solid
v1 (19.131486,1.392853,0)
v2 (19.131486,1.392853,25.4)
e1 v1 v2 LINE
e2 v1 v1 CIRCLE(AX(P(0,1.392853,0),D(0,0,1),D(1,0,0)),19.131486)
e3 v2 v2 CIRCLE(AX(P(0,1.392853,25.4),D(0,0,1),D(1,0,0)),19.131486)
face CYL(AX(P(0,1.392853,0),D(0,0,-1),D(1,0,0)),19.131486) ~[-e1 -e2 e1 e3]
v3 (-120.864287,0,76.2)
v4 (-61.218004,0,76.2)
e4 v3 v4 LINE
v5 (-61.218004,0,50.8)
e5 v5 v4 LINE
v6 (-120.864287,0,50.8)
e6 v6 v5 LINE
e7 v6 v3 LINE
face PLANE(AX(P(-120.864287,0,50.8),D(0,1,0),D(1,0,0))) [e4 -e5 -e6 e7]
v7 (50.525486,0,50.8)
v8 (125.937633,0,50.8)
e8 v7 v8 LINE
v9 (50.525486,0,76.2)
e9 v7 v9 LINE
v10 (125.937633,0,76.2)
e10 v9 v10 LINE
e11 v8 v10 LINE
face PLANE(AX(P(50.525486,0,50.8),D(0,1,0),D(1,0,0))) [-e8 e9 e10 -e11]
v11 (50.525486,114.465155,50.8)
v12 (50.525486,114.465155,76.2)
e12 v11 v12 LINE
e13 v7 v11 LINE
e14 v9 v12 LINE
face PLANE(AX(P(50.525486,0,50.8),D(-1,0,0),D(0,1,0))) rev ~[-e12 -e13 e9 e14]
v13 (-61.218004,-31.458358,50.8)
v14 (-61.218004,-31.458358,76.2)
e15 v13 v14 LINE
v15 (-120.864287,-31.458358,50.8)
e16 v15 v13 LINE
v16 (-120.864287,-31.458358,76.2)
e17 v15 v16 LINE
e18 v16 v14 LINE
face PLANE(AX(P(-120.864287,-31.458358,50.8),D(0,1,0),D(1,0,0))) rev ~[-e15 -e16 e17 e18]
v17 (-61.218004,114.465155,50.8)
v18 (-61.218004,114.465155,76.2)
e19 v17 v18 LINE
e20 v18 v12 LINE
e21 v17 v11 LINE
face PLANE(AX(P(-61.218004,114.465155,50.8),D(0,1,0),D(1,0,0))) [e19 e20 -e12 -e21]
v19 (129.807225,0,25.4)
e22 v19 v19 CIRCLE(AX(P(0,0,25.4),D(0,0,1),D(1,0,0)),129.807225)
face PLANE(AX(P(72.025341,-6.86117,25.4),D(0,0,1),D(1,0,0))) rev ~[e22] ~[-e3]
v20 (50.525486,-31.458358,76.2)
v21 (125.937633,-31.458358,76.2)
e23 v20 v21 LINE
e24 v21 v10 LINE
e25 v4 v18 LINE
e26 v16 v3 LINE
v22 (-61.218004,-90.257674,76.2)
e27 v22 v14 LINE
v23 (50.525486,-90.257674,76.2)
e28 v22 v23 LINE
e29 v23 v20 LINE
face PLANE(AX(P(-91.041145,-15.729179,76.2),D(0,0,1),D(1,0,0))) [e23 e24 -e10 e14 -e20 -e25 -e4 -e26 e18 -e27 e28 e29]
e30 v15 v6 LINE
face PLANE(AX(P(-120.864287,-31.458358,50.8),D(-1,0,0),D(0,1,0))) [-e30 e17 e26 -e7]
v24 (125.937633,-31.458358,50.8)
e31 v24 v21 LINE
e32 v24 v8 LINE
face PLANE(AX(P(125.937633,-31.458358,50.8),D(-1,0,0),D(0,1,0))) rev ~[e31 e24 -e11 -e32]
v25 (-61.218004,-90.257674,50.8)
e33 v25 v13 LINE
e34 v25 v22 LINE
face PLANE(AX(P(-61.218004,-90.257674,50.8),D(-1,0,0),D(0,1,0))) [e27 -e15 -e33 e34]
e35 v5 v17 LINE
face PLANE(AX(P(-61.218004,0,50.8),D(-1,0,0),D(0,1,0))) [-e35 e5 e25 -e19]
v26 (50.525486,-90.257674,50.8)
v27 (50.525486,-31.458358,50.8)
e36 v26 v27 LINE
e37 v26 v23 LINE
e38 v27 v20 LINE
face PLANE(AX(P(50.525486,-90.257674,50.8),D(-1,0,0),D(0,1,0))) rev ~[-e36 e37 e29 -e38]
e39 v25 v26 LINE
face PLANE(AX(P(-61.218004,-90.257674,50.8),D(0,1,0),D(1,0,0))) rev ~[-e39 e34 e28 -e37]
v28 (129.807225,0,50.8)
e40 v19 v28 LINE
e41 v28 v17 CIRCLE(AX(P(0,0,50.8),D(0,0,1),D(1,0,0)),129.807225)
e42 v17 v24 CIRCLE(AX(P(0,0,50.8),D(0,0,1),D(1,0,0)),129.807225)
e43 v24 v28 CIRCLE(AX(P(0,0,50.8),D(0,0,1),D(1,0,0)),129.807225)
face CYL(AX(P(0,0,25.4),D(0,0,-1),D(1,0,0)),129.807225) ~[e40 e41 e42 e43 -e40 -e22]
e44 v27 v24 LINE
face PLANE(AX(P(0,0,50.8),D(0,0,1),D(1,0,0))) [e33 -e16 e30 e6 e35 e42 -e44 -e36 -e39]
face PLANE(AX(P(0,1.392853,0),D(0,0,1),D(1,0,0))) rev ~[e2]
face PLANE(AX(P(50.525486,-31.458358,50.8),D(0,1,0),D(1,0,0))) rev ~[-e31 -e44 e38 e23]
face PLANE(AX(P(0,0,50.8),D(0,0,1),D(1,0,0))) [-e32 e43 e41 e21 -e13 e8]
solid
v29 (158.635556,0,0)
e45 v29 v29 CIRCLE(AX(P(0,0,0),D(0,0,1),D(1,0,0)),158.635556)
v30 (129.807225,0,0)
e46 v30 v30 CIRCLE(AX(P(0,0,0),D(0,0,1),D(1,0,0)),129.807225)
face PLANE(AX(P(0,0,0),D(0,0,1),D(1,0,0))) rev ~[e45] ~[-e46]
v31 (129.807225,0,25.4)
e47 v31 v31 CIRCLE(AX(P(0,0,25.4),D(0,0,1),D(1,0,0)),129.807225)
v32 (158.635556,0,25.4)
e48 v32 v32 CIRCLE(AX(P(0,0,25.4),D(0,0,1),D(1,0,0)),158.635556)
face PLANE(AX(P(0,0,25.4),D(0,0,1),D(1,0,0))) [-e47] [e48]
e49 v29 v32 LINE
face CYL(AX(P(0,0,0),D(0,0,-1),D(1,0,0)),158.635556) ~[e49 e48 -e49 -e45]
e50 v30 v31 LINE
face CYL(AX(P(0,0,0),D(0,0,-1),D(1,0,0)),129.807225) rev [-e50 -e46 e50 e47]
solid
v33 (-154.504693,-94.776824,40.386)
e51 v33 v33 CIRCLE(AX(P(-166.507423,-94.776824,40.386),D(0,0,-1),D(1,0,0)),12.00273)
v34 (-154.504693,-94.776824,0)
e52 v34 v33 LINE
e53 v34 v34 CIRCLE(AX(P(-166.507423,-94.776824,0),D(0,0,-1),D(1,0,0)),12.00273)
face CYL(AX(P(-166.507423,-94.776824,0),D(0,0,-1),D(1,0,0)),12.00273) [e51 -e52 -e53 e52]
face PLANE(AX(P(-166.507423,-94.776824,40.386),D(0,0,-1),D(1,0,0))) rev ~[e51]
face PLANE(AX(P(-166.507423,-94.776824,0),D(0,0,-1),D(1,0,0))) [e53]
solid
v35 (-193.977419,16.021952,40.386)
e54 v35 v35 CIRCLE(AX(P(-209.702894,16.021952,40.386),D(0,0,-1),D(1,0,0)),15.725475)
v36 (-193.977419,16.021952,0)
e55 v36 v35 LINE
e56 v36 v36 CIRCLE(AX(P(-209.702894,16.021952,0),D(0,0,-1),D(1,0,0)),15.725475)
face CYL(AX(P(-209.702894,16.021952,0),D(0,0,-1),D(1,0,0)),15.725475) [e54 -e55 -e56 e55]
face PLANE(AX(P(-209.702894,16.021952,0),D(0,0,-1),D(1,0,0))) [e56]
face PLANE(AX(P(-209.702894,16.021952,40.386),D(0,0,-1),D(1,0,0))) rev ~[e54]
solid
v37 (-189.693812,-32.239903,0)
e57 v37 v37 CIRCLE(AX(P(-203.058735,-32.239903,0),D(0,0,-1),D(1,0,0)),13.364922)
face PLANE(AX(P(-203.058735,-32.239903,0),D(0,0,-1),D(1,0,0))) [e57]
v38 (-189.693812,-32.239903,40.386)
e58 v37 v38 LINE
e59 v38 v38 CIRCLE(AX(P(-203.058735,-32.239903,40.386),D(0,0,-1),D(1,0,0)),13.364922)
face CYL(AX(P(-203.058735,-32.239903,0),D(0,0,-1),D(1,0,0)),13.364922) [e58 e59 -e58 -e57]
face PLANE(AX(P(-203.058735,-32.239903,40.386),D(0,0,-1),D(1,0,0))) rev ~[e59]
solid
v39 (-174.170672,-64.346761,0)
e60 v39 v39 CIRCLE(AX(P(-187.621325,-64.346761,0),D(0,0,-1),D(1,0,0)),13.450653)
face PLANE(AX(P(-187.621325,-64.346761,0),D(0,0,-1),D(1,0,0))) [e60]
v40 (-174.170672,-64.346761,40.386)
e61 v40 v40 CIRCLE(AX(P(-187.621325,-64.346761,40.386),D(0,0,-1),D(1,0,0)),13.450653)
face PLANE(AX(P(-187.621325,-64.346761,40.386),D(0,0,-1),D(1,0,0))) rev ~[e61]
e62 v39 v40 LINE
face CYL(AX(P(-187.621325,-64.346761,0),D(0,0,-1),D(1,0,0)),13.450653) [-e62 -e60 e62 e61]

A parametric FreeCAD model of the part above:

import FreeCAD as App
import Part
import Sketcher
Q = App.Units.Quantity

doc = App.newDocument("Part")
body = doc.addObject("PartDesign::Body", "Body")

sketch1 = doc.addObject("Sketcher::SketchObject", "Sketch")
body.addObject(sketch1)
sketch1.AttachmentSupport = (doc.XY_Plane, [""])
sketch1.MapMode = "FlatFace"
sketch1.addGeometry(Part.Circle(App.Vector(0, 0, 0), App.Vector(0, 0, 1), 158.635556), False)
sketch1.addGeometry(Part.Circle(App.Vector(0, 0, 0), App.Vector(0, 0, 1), 129.807225), False)
sketch1.addConstraint(Sketcher.Constraint("Coincident", 0, 3, -1, 1))
sketch1.addConstraint(Sketcher.Constraint("Coincident", 1, 3, -1, 1))
sketch1.addConstraint(Sketcher.Constraint("Diameter", 1, Q("259.61445 mm")))
sketch1.addConstraint(Sketcher.Constraint("Diameter", 0, Q("317.271113 mm")))
pad1 = doc.addObject("PartDesign::Pad", "Pad")
body.addObject(pad1)
pad1.Profile = sketch1
pad1.Length = Q("1 in")
body2 = doc.addObject("PartDesign::Body", "Body001")

sketch2 = doc.addObject("Sketcher::SketchObject", "Sketch001")
body2.addObject(sketch2)
sketch2.AttachmentSupport = (doc.getObject("XY_Plane001"), [""])
sketch2.MapMode = "FlatFace"
sketch2.addGeometry(Part.Circle(App.Vector(0, 1.392853, 0), App.Vector(0, 0, 1), 19.131486), False)
sketch2.addConstraint(Sketcher.Constraint("PointOnObject", 0, 3, -2))
sketch2.addConstraint(Sketcher.Constraint("Diameter", 0, Q("38.262973 mm")))
sketch2.addConstraint(Sketcher.Constraint("DistanceY", -1, 1, 0, 3, Q("1.392853 mm")))
pad2 = doc.addObject("PartDesign::Pad", "Pad001")
body2.addObject(pad2)
pad2.Profile = sketch2
pad2.Length = Q("1 in")
body3 = doc.addObject("PartDesign::Body", "Body002")

sketch3 = doc.addObject("Sketcher::SketchObject", "Sketch002")
body3.addObject(sketch3)
sketch3.AttachmentSupport = (doc.getObject("XY_Plane002"), [""])
sketch3.MapMode = "FlatFace"
sketch3.addGeometry(Part.Circle(App.Vector(-209.702894, 16.021952, 0), App.Vector(0, 0, 1), 15.725475), False)
sketch3.addConstraint(Sketcher.Constraint("Diameter", 0, Q("31.450949 mm")))
sketch3.addConstraint(Sketcher.Constraint("DistanceX", 0, 3, -1, 1, Q("209.702894 mm")))
sketch3.addConstraint(Sketcher.Constraint("DistanceY", -1, 1, 0, 3, Q("16.021952 mm")))
pad3 = doc.addObject("PartDesign::Pad", "Pad002")
body3.addObject(pad3)
pad3.Profile = sketch3
pad3.Length = Q("1.59 in")
body4 = doc.addObject("PartDesign::Body", "Body003")

sketch4 = doc.addObject("Sketcher::SketchObject", "Sketch003")
body4.addObject(sketch4)
sketch4.AttachmentSupport = (doc.getObject("XY_Plane003"), [""])
sketch4.MapMode = "FlatFace"
sketch4.addGeometry(Part.Circle(App.Vector(-203.058735, -32.239903, 0), App.Vector(0, 0, 1), 13.364922), False)
sketch4.addConstraint(Sketcher.Constraint("Diameter", 0, Q("26.729844 mm")))
sketch4.addConstraint(Sketcher.Constraint("DistanceX", 0, 3, -1, 1, Q("203.058735 mm")))
sketch4.addConstraint(Sketcher.Constraint("DistanceY", 0, 3, -1, 1, Q("32.239903 mm")))
pad4 = doc.addObject("PartDesign::Pad", "Pad003")
body4.addObject(pad4)
pad4.Profile = sketch4
pad4.Length = Q("1.59 in")
body5 = doc.addObject("PartDesign::Body", "Body004")

sketch5 = doc.addObject("Sketcher::SketchObject", "Sketch004")
body5.addObject(sketch5)
sketch5.AttachmentSupport = (doc.getObject("XY_Plane004"), [""])
sketch5.MapMode = "FlatFace"
sketch5.addGeometry(Part.Circle(App.Vector(-187.621325, -64.346761, 0), App.Vector(0, 0, 1), 13.450653), False)
sketch5.addConstraint(Sketcher.Constraint("Diameter", 0, Q("26.901306 mm")))
sketch5.addConstraint(Sketcher.Constraint("DistanceY", 0, 3, -1, 1, Q("64.346761 mm")))
sketch5.addConstraint(Sketcher.Constraint("DistanceX", 0, 3, -1, 1, Q("187.621325 mm")))
pad5 = doc.addObject("PartDesign::Pad", "Pad004")
body5.addObject(pad5)
pad5.Profile = sketch5
pad5.Length = Q("1.59 in")
body6 = doc.addObject("PartDesign::Body", "Body005")

sketch6 = doc.addObject("Sketcher::SketchObject", "Sketch005")
body6.addObject(sketch6)
sketch6.AttachmentSupport = (doc.getObject("XY_Plane005"), [""])
sketch6.MapMode = "FlatFace"
sketch6.addGeometry(Part.Circle(App.Vector(-166.507423, -94.776824, 0), App.Vector(0, 0, 1), 12.00273), False)
sketch6.addConstraint(Sketcher.Constraint("Diameter", 0, Q("24.005461 mm")))
sketch6.addConstraint(Sketcher.Constraint("DistanceX", 0, 3, -1, 1, Q("166.507423 mm")))
sketch6.addConstraint(Sketcher.Constraint("DistanceY", 0, 3, -1, 1, Q("94.776824 mm")))
pad6 = doc.addObject("PartDesign::Pad", "Pad005")
body6.addObject(pad6)
pad6.Profile = sketch6
pad6.Length = Q("1.59 in")
body.AllowCompound = True
doc.recompute()

boolean = doc.addObject("PartDesign::Boolean", "Boolean")
body.addObject(boolean)
boolean.Type = "Fuse"
boolean.addObjects([body2])

sketch7 = doc.addObject("Sketcher::SketchObject", "Sketch006")
body.addObject(sketch7)
sketch7.AttachmentSupport = (doc.XY_Plane, [""])
sketch7.MapMode = "FlatFace"
sketch7.AttachmentOffset = App.Placement(App.Vector(0, 0, 1 * 25.4), App.Rotation())
sketch7.addGeometry(Part.Circle(App.Vector(0, 0, 0), App.Vector(0, 0, 1), 129.807225), False)
sketch7.addConstraint(Sketcher.Constraint("Coincident", 0, 3, -1, 1))
sketch7.addConstraint(Sketcher.Constraint("Diameter", 0, Q("259.61445 mm")))
pad7 = doc.addObject("PartDesign::Pad", "Pad006")
body.addObject(pad7)
pad7.Profile = sketch7
pad7.Length = Q("1 in")

sketch8 = doc.addObject("Sketcher::SketchObject", "Sketch007")
body.addObject(sketch8)
sketch8.AttachmentSupport = (doc.XY_Plane, [""])
sketch8.MapMode = "FlatFace"
sketch8.AttachmentOffset = App.Placement(App.Vector(0, 0, 2 * 25.4), App.Rotation())
sketch8.addGeometry(Part.LineSegment(App.Vector(-120.864287, 0, 0), App.Vector(-120.864287, -31.458358, 0)), False)
sketch8.addGeometry(Part.LineSegment(App.Vector(-120.864287, -31.458358, 0), App.Vector(-61.218004, -31.458358, 0)), False)
sketch8.addGeometry(Part.LineSegment(App.Vector(-61.218004, -31.458358, 0), App.Vector(-61.218004, -90.257674, 0)), False)
sketch8.addGeometry(Part.LineSegment(App.Vector(-61.218004, -90.257674, 0), App.Vector(50.525486, -90.257674, 0)), False)
sketch8.addGeometry(Part.LineSegment(App.Vector(50.525486, -90.257674, 0), App.Vector(50.525486, -31.458358, 0)), False)
sketch8.addGeometry(Part.LineSegment(App.Vector(50.525486, -31.458358, 0), App.Vector(125.937633, -31.458358, 0)), False)
sketch8.addGeometry(Part.LineSegment(App.Vector(125.937633, -31.458358, 0), App.Vector(125.937633, 0, 0)), False)
sketch8.addGeometry(Part.LineSegment(App.Vector(125.937633, 0, 0), App.Vector(50.525486, 0, 0)), False)
sketch8.addGeometry(Part.LineSegment(App.Vector(50.525486, 0, 0), App.Vector(50.525486, 114.465155, 0)), False)
sketch8.addGeometry(Part.LineSegment(App.Vector(50.525486, 114.465155, 0), App.Vector(-61.218004, 114.465155, 0)), False)
sketch8.addGeometry(Part.LineSegment(App.Vector(-61.218004, 114.465155, 0), App.Vector(-61.218004, 0, 0)), False)
sketch8.addGeometry(Part.LineSegment(App.Vector(-61.218004, 0, 0), App.Vector(-120.864287, 0, 0)), False)
sketch8.addConstraint(Sketcher.Constraint("Coincident", 0, 2, 1, 1))
sketch8.addConstraint(Sketcher.Constraint("Coincident", 1, 2, 2, 1))
sketch8.addConstraint(Sketcher.Constraint("Coincident", 2, 2, 3, 1))
sketch8.addConstraint(Sketcher.Constraint("Coincident", 3, 2, 4, 1))
sketch8.addConstraint(Sketcher.Constraint("Coincident", 4, 2, 5, 1))
sketch8.addConstraint(Sketcher.Constraint("Coincident", 5, 2, 6, 1))
sketch8.addConstraint(Sketcher.Constraint("Coincident", 6, 2, 7, 1))
sketch8.addConstraint(Sketcher.Constraint("Coincident", 7, 2, 8, 1))
sketch8.addConstraint(Sketcher.Constraint("Coincident", 8, 2, 9, 1))
sketch8.addConstraint(Sketcher.Constraint("Coincident", 9, 2, 10, 1))
sketch8.addConstraint(Sketcher.Constraint("Coincident", 10, 2, 11, 1))
sketch8.addConstraint(Sketcher.Constraint("Coincident", 11, 2, 0, 1))
sketch8.addConstraint(Sketcher.Constraint("Vertical", 0))
sketch8.addConstraint(Sketcher.Constraint("Horizontal", 1))
sketch8.addConstraint(Sketcher.Constraint("Vertical", 2))
sketch8.addConstraint(Sketcher.Constraint("Horizontal", 3))
sketch8.addConstraint(Sketcher.Constraint("Vertical", 4))
sketch8.addConstraint(Sketcher.Constraint("Horizontal", 5))
sketch8.addConstraint(Sketcher.Constraint("Vertical", 6))
sketch8.addConstraint(Sketcher.Constraint("Horizontal", 7))
sketch8.addConstraint(Sketcher.Constraint("Vertical", 8))
sketch8.addConstraint(Sketcher.Constraint("Horizontal", 9))
sketch8.addConstraint(Sketcher.Constraint("Vertical", 10))
sketch8.addConstraint(Sketcher.Constraint("Horizontal", 11))
sketch8.addConstraint(Sketcher.Constraint("PointOnObject", 6, 2, -1))
sketch8.addConstraint(Sketcher.Constraint("PointOnObject", 10, 2, -1))
sketch8.addConstraint(Sketcher.Constraint("Horizontal", 1, 2, 4, 2))
sketch8.addConstraint(Sketcher.Constraint("Vertical", 4, 2, 7, 2))
sketch8.addConstraint(Sketcher.Constraint("Vertical", 2, 2, 9, 2))
sketch8.addConstraint(Sketcher.Constraint("DistanceX", 3, 1, 3, 2, Q("111.74349 mm")))
sketch8.addConstraint(Sketcher.Constraint("DistanceX", 1, 1, 1, 2, Q("59.646283 mm")))
sketch8.addConstraint(Sketcher.Constraint("DistanceX", 5, 1, 5, 2, Q("75.412147 mm")))
sketch8.addConstraint(Sketcher.Constraint("DistanceY", 0, 2, 0, 1, Q("31.458358 mm")))
sketch8.addConstraint(Sketcher.Constraint("DistanceY", 2, 2, 2, 1, Q("58.799317 mm")))
sketch8.addConstraint(Sketcher.Constraint("DistanceY", 8, 1, 8, 2, Q("114.465155 mm")))
sketch8.addConstraint(Sketcher.Constraint("DistanceX", 0, 2, -1, 1, Q("120.864287 mm")))
pad8 = doc.addObject("PartDesign::Pad", "Pad007")
body.addObject(pad8)
pad8.Profile = sketch8
pad8.Length = Q("1 in")

doc.recompute()
